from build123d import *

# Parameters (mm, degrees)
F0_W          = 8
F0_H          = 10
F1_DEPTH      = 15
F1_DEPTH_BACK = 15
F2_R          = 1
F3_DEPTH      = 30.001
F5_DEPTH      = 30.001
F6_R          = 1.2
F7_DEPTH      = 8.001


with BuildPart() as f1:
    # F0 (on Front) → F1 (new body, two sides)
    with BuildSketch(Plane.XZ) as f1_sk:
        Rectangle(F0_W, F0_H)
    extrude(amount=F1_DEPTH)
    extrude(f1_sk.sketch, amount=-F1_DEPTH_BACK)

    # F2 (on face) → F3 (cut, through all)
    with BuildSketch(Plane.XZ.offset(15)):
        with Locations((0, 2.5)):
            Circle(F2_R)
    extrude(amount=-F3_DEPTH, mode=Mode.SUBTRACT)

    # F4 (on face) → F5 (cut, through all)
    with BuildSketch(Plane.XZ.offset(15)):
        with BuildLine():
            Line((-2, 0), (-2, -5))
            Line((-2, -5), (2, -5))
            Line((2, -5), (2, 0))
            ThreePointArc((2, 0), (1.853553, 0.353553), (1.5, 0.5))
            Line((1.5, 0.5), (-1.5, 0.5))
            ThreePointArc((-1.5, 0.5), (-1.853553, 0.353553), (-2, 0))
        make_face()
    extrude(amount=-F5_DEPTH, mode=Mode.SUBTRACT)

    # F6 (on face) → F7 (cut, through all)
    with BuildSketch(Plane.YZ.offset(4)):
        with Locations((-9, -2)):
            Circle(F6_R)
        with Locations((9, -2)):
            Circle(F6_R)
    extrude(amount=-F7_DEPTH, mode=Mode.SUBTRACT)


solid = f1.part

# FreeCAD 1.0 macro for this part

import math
import FreeCAD as App
import Part
import Sketcher
from FreeCAD import Vector


def add_polygon(sketch, points):
    """Adds a closed chain of lines whose ends are joined by coincident constraints."""
    first, n = sketch.GeometryCount, len(points)
    for a, b in zip(points, points[1:] + points[:1]):
        sketch.addGeometry(Part.LineSegment(App.Vector(*a, 0), App.Vector(*b, 0)), False)
    for i in range(n):
        sketch.addConstraint(Sketcher.Constraint("Coincident", first + i, 2, first + (i + 1) % n, 1))

doc = App.newDocument("Part")
body = doc.addObject("PartDesign::Body", "Body")

sketch1 = body.newObject("Sketcher::SketchObject", "Sketch")
sketch1.AttachmentSupport = (doc.getObject("XZ_Plane"), [""])
sketch1.MapMode = "FlatFace"
add_polygon(sketch1, [(-4, 5), (-4, -5), (4, -5), (4, 5)])
sketch1.addConstraint(Sketcher.Constraint("Vertical", 0))
sketch1.addConstraint(Sketcher.Constraint("Horizontal", 1))
sketch1.addConstraint(Sketcher.Constraint("Vertical", 2))
sketch1.addConstraint(Sketcher.Constraint("Horizontal", 3))
sketch1.addConstraint(Sketcher.Constraint("Symmetric", 0, 2, 2, 2, -1, 1))
sketch1.addConstraint(Sketcher.Constraint("DistanceX", 1, 1, 1, 2, 8.0))
sketch1.addConstraint(Sketcher.Constraint("DistanceY", 0, 2, 0, 1, 10.0))
pad1 = body.newObject("PartDesign::Pad", "Pad")
pad1.Profile = sketch1
pad1.Type = "TwoLengths"
pad1.Length = 15
pad1.Length2 = 15

sketch2 = body.newObject("Sketcher::SketchObject", "Sketch001")
sketch2.AttachmentSupport = (doc.getObject("XZ_Plane"), [""])
sketch2.MapMode = "FlatFace"
sketch2.AttachmentOffset = App.Placement(Vector(0, 0, 15), App.Rotation())
sketch2.addGeometry(Part.Circle(Vector(0, 2.5, 0), Vector(0, 0, 1), 1), False)
sketch2.addConstraint(Sketcher.Constraint("PointOnObject", 0, 3, -2))
sketch2.addConstraint(Sketcher.Constraint("Diameter", 0, 2.0))
sketch2.addConstraint(Sketcher.Constraint("DistanceY", -1, 1, 0, 3, 2.5))
pocket1 = body.newObject("PartDesign::Pocket", "Pocket")
pocket1.Profile = sketch2
pocket1.Type = "ThroughAll"

sketch3 = body.newObject("Sketcher::SketchObject", "Sketch002")
sketch3.AttachmentSupport = (doc.getObject("XZ_Plane"), [""])
sketch3.MapMode = "FlatFace"
sketch3.AttachmentOffset = App.Placement(Vector(0, 0, 15), App.Rotation())
sketch3.addGeometry(Part.LineSegment(Vector(-2, 0, 0), Vector(-2, -5, 0)), False)
sketch3.addGeometry(Part.LineSegment(Vector(-2, -5, 0), Vector(2, -5, 0)), False)
sketch3.addGeometry(Part.LineSegment(Vector(2, -5, 0), Vector(2, 0, 0)), False)
sketch3.addGeometry(Part.ArcOfCircle(Part.Circle(Vector(1.499999, -0.000001, 0), Vector(0, 0, 1), 0.500001), math.radians(0.000153), math.radians(89.999847)), False)
sketch3.addGeometry(Part.LineSegment(Vector(1.5, 0.5, 0), Vector(-1.5, 0.5, 0)), False)
sketch3.addGeometry(Part.ArcOfCircle(Part.Circle(Vector(-1.499999, -0.000001, 0), Vector(0, 0, 1), 0.500001), math.radians(90.000153), math.radians(179.999847)), False)
sketch3.addConstraint(Sketcher.Constraint("Coincident", 0, 2, 1, 1))
sketch3.addConstraint(Sketcher.Constraint("Coincident", 1, 2, 2, 1))
sketch3.addConstraint(Sketcher.Constraint("Coincident", 2, 2, 3, 1))
sketch3.addConstraint(Sketcher.Constraint("Coincident", 3, 2, 4, 1))
sketch3.addConstraint(Sketcher.Constraint("Coincident", 4, 2, 5, 1))
sketch3.addConstraint(Sketcher.Constraint("Coincident", 5, 2, 0, 1))
sketch3.addConstraint(Sketcher.Constraint("Vertical", 0))
sketch3.addConstraint(Sketcher.Constraint("Horizontal", 1))
sketch3.addConstraint(Sketcher.Constraint("Vertical", 2))
sketch3.addConstraint(Sketcher.Constraint("Horizontal", 4))
sketch3.addConstraint(Sketcher.Constraint("Equal", 3, 5))
sketch3.addConstraint(Sketcher.Constraint("Symmetric", 3, 3, 5, 3, -1, 1))
sketch3.addConstraint(Sketcher.Constraint("PointOnObject", 2, 2, -1))
sketch3.addConstraint(Sketcher.Constraint("PointOnObject", 5, 2, -1))
sketch3.addConstraint(Sketcher.Constraint("Vertical", 5, 3, 4, 2))
sketch3.addConstraint(Sketcher.Constraint("Radius", 3, 0.500001))
sketch3.addConstraint(Sketcher.Constraint("DistanceX", 1, 1, 1, 2, 4.0))
sketch3.addConstraint(Sketcher.Constraint("DistanceX", 4, 2, 4, 1, 3.0))
sketch3.addConstraint(Sketcher.Constraint("DistanceY", 0, 2, 0, 1, 5.0))
pocket2 = body.newObject("PartDesign::Pocket", "Pocket001")
pocket2.Profile = sketch3
pocket2.Type = "ThroughAll"

sketch4 = body.newObject("Sketcher::SketchObject", "Sketch003")
sketch4.AttachmentSupport = (doc.getObject("YZ_Plane"), [""])
sketch4.MapMode = "FlatFace"
sketch4.AttachmentOffset = App.Placement(Vector(0, 0, 4), App.Rotation())
sketch4.addGeometry(Part.Circle(Vector(-9, -2, 0), Vector(0, 0, 1), 1.2), False)
sketch4.addGeometry(Part.Circle(Vector(9, -2, 0), Vector(0, 0, 1), 1.2), False)
sketch4.addConstraint(Sketcher.Constraint("Equal", 0, 1))
sketch4.addConstraint(Sketcher.Constraint("Symmetric", 0, 3, 1, 3, -2))
sketch4.addConstraint(Sketcher.Constraint("Diameter", 0, 2.4))
sketch4.addConstraint(Sketcher.Constraint("DistanceX", 0, 3, -1, 1, 9.0))
sketch4.addConstraint(Sketcher.Constraint("DistanceY", 0, 3, -1, 1, 2.0))
pocket3 = body.newObject("PartDesign::Pocket", "Pocket002")
pocket3.Profile = sketch4
pocket3.Type = "ThroughAll"

doc.recompute()
